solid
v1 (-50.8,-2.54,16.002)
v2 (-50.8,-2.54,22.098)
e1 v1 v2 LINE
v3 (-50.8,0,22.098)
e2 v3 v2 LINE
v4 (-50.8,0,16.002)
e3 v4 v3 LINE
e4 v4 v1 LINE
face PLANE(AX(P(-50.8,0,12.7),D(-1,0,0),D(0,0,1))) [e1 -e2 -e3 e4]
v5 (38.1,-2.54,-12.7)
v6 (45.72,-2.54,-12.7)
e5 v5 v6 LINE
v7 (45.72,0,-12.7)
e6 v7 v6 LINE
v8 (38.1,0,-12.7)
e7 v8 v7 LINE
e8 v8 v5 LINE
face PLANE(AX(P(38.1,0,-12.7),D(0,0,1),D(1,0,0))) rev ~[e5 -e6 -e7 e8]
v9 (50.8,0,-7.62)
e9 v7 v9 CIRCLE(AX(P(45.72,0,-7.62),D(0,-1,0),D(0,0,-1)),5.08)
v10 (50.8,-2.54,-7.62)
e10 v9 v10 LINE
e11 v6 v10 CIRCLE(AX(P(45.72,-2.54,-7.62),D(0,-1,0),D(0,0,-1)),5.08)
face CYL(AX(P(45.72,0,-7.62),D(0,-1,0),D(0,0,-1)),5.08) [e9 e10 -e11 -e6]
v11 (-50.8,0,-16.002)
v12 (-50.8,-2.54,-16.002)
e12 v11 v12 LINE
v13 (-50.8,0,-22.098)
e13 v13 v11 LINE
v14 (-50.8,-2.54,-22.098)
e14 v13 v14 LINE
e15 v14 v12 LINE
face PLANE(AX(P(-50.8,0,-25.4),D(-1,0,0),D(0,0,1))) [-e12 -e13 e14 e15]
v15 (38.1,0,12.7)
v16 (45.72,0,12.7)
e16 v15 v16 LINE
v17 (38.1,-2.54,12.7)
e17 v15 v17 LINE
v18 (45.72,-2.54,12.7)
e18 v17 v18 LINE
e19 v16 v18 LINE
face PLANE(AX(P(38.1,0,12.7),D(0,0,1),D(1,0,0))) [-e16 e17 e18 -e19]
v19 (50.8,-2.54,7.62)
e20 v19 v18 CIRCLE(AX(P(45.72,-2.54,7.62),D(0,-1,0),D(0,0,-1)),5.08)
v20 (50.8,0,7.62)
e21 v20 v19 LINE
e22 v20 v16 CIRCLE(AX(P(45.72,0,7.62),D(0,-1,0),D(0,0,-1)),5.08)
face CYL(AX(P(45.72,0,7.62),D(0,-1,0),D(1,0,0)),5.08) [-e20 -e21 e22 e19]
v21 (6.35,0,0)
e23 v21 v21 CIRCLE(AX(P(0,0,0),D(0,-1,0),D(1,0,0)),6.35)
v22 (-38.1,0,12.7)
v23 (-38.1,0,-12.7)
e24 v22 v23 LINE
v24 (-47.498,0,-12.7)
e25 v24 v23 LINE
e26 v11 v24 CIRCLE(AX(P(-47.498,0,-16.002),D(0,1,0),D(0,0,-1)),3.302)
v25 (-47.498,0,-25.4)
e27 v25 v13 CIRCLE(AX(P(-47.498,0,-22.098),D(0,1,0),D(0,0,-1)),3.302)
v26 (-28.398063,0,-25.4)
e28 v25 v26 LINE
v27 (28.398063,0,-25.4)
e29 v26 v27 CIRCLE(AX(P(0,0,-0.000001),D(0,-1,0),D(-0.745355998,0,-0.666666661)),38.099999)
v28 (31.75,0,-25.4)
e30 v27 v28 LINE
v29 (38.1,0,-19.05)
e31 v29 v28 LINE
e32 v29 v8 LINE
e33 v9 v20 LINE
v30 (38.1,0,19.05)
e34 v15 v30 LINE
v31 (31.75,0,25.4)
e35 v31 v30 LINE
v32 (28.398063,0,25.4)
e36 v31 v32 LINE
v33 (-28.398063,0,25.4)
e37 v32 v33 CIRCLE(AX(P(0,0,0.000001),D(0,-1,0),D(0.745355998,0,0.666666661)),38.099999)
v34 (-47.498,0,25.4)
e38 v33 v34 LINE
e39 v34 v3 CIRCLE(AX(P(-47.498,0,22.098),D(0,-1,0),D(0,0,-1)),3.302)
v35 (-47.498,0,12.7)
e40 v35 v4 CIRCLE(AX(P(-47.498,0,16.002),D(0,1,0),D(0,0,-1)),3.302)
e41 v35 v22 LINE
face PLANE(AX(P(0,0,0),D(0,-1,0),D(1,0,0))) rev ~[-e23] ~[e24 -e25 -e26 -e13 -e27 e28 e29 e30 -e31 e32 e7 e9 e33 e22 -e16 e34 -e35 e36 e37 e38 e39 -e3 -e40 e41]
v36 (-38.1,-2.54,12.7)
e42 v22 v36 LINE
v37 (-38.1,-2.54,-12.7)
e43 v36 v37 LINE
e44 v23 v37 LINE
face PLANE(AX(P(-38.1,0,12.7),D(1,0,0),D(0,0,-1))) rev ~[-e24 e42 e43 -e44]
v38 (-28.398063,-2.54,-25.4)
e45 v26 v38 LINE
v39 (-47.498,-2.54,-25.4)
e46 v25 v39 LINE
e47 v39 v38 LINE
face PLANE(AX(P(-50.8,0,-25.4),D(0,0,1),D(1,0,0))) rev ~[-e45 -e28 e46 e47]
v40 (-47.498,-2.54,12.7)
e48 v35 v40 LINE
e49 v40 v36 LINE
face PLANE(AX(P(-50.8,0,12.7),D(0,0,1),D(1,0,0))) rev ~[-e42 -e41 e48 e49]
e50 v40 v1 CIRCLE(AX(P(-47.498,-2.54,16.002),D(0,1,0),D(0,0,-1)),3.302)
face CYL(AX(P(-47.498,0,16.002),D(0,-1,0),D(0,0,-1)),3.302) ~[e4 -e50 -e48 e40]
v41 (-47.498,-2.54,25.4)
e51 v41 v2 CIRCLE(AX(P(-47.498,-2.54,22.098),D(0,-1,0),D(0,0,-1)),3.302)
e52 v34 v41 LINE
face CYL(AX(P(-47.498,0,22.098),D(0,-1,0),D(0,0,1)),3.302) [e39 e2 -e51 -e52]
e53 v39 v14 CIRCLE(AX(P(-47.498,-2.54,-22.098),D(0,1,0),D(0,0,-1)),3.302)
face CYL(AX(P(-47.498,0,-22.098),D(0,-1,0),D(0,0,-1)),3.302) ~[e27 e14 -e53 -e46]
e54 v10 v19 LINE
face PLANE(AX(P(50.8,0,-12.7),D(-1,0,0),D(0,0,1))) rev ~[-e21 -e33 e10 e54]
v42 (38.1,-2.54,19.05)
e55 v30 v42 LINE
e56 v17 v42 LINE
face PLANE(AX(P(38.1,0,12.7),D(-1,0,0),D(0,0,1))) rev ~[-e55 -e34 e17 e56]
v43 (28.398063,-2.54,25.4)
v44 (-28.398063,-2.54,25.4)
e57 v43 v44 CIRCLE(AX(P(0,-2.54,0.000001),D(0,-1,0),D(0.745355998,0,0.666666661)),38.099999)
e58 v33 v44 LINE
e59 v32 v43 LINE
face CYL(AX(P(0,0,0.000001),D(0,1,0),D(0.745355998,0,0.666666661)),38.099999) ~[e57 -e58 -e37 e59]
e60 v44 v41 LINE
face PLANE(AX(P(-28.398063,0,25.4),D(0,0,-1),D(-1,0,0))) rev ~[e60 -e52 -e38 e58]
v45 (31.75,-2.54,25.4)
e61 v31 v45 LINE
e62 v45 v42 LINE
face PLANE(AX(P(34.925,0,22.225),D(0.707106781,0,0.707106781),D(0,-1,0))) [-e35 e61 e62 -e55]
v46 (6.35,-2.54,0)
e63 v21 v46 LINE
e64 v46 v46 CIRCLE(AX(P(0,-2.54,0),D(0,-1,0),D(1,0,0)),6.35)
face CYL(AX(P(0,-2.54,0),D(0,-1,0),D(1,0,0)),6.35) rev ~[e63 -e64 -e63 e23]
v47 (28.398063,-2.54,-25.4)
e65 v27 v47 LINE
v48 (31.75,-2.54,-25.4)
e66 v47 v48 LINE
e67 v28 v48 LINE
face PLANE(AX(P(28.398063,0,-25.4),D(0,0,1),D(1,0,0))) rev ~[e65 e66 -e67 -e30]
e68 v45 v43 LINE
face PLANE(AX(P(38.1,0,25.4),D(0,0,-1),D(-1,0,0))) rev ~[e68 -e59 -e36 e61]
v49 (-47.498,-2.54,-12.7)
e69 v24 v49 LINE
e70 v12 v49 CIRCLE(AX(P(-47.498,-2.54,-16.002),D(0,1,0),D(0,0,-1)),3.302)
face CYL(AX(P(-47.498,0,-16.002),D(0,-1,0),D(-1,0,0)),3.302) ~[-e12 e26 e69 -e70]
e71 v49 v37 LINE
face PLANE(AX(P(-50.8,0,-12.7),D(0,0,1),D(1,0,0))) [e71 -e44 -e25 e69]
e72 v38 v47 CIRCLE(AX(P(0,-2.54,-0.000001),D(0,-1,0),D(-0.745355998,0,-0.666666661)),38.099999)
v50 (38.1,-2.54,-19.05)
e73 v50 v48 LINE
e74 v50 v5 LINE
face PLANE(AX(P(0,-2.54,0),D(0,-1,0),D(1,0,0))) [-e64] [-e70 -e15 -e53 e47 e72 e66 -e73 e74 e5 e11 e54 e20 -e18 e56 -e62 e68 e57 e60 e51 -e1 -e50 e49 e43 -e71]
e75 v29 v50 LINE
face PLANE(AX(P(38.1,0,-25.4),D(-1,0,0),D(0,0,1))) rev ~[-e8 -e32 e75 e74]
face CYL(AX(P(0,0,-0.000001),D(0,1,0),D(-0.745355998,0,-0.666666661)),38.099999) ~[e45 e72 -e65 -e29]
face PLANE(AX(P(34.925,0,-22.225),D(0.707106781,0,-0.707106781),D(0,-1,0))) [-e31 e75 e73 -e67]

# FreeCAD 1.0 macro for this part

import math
import FreeCAD as App
import Part
import Sketcher
Q = App.Units.Quantity


def edges_at(feature, points):
    """Names of the edges that pass closest to the given points."""
    edges = feature.Shape.Edges
    near = lambda p: min(range(len(edges)), key=lambda i: edges[i].distToShape(Part.Vertex(*p))[0])
    return sorted({f"Edge{near(p) + 1}" for p in points})

doc = App.newDocument("Part")
params = doc.addObject("Spreadsheet::Sheet", "Params")
for row, (alias, value) in enumerate([
    ("sketch1_radius", "1.5 in"),
    ("sketch1_height", "1 in"),
    ("sketch1_width", "0.5 in"),
    ("pad1_length", "0.1 in"),
    ("sketch2_diameter", "0.5 in"),
    ("pocket1_length", "1 in"),
    ("chamfer_size", "0.25 in"),
    ("chamfer2_size", "0.25 in"),
    ("fillet_radius", "0.2 in"),
    ("fillet2_radius", "0.13 in"),
], start=1):
    params.set(f"A{row}", alias)
    params.set(f"B{row}", "=" + value)
    params.setAlias(f"B{row}", alias)

body = doc.addObject("PartDesign::Body", "Body")

sketch1 = doc.addObject("Sketcher::SketchObject", "Sketch")
body.addObject(sketch1)
sketch1.AttachmentSupport = (doc.XZ_Plane, [""])
sketch1.MapMode = "FlatFace"
sketch1.addGeometry([
    Part.LineSegment(App.Vector(38.1, 25.4, 0), App.Vector(28.398063, 25.4, 0)),
    Part.ArcOfCircle(Part.Circle(App.Vector(0, 0.000001, 0), App.Vector(0, 0, 1), 38.099999), math.radians(41.810314), math.radians(138.189686)),
    Part.LineSegment(App.Vector(-28.398063, 25.4, 0), App.Vector(-50.8, 25.4, 0)),
    Part.LineSegment(App.Vector(-50.8, 25.4, 0), App.Vector(-50.8, 12.7, 0)),
    Part.LineSegment(App.Vector(-50.8, 12.7, 0), App.Vector(-38.1, 12.7, 0)),
    Part.LineSegment(App.Vector(-38.1, 12.7, 0), App.Vector(-38.1, -12.7, 0)),
    Part.LineSegment(App.Vector(-38.1, -12.7, 0), App.Vector(-50.8, -12.7, 0)),
    Part.LineSegment(App.Vector(-50.8, -12.7, 0), App.Vector(-50.8, -25.4, 0)),
    Part.LineSegment(App.Vector(-50.8, -25.4, 0), App.Vector(-28.398063, -25.4, 0)),
    Part.ArcOfCircle(Part.Circle(App.Vector(0, -0.000001, 0), App.Vector(0, 0, 1), 38.099999), math.radians(-138.189686), math.radians(-41.810314)),
    Part.LineSegment(App.Vector(28.398063, -25.4, 0), App.Vector(38.1, -25.4, 0)),
    Part.LineSegment(App.Vector(38.1, -25.4, 0), App.Vector(38.1, -12.7, 0)),
    Part.LineSegment(App.Vector(38.1, -12.7, 0), App.Vector(50.8, -12.7, 0)),
    Part.LineSegment(App.Vector(50.8, -12.7, 0), App.Vector(50.8, 12.7, 0)),
    Part.LineSegment(App.Vector(50.8, 12.7, 0), App.Vector(38.1, 12.7, 0)),
    Part.LineSegment(App.Vector(38.1, 12.7, 0), App.Vector(38.1, 25.4, 0)),
], False)
sketch1.addConstraint([
    Sketcher.Constraint("Coincident", 0, 2, 1, 1),
    Sketcher.Constraint("Coincident", 1, 2, 2, 1),
    Sketcher.Constraint("Coincident", 2, 2, 3, 1),
    Sketcher.Constraint("Coincident", 3, 2, 4, 1),
    Sketcher.Constraint("Coincident", 4, 2, 5, 1),
    Sketcher.Constraint("Coincident", 5, 2, 6, 1),
    Sketcher.Constraint("Coincident", 6, 2, 7, 1),
    Sketcher.Constraint("Coincident", 7, 2, 8, 1),
    Sketcher.Constraint("Coincident", 8, 2, 9, 1),
    Sketcher.Constraint("Coincident", 9, 2, 10, 1),
    Sketcher.Constraint("Coincident", 10, 2, 11, 1),
    Sketcher.Constraint("Coincident", 11, 2, 12, 1),
    Sketcher.Constraint("Coincident", 12, 2, 13, 1),
    Sketcher.Constraint("Coincident", 13, 2, 14, 1),
    Sketcher.Constraint("Coincident", 14, 2, 15, 1),
    Sketcher.Constraint("Coincident", 15, 2, 0, 1),
    Sketcher.Constraint("Horizontal", 0),
    Sketcher.Constraint("Horizontal", 2),
    Sketcher.Constraint("Vertical", 3),
    Sketcher.Constraint("Horizontal", 4),
    Sketcher.Constraint("Vertical", 5),
    Sketcher.Constraint("Horizontal", 6),
    Sketcher.Constraint("Vertical", 7),
    Sketcher.Constraint("Horizontal", 8),
    Sketcher.Constraint("Horizontal", 10),
    Sketcher.Constraint("Vertical", 11),
    Sketcher.Constraint("Horizontal", 12),
    Sketcher.Constraint("Vertical", 13),
    Sketcher.Constraint("Horizontal", 14),
    Sketcher.Constraint("Vertical", 15),
    Sketcher.Constraint("Coincident", 1, 3, -1, 1),
    Sketcher.Constraint("Coincident", 9, 3, -1, 1),
    Sketcher.Constraint("Equal", 1, 9),
    Sketcher.Constraint("Symmetric", 4, 2, 11, 2, -1, 1),
    Sketcher.Constraint("Symmetric", 6, 2, 13, 2, -1, 1),
    Sketcher.Constraint("Symmetric", 3, 2, 13, 2, -2),
    Sketcher.Constraint("Symmetric", 10, 2, 15, 2, -1),
    Sketcher.Constraint("Horizontal", 0, 2, 1, 2),
    Sketcher.Constraint("Horizontal", 8, 2, 9, 2),
    Sketcher.Constraint("Equal", 14, 3),
    Sketcher.Constraint("Radius", 1, Q("1.5 in")),
    Sketcher.Constraint("DistanceY", 5, 2, 5, 1, Q("1 in")),
    Sketcher.Constraint("DistanceX", 4, 1, 4, 2, Q("0.5 in")),
    Sketcher.Constraint("DistanceX", 2, 2, -1, 1, Q("2 in")),
])
sketch1.setExpression("Constraints[40]", "Params.sketch1_radius")
sketch1.setExpression("Constraints[41]", "Params.sketch1_height")
sketch1.setExpression("Constraints[42]", "Params.sketch1_width")
pad1 = doc.addObject("PartDesign::Pad", "Pad")
body.addObject(pad1)
pad1.Profile = sketch1
pad1.setExpression("Length", "Params.pad1_length")

sketch2 = doc.addObject("Sketcher::SketchObject", "Sketch001")
body.addObject(sketch2)
sketch2.AttachmentSupport = (doc.XZ_Plane, [""])
sketch2.MapMode = "FlatFace"
sketch2.AttachmentOffset = App.Placement(App.Vector(0, 0, 0.1 * 25.4), App.Rotation())
sketch2.addGeometry(Part.Circle(App.Vector(0, 0, 0), App.Vector(0, 0, 1), 6.35), False)
sketch2.addConstraint([
    Sketcher.Constraint("Coincident", 0, 3, -1, 1),
    Sketcher.Constraint("Diameter", 0, Q("0.5 in")),
])
sketch2.setExpression("Constraints[1]", "Params.sketch2_diameter")
pocket1 = doc.addObject("PartDesign::Pocket", "Pocket")
body.addObject(pocket1)
pocket1.Profile = sketch2
pocket1.setExpression("Length", "Params.pocket1_length")
pocket1.Midplane = True
doc.recompute()

chamfer = doc.addObject("PartDesign::Chamfer", "Chamfer")
body.addObject(chamfer)
chamfer.Base = (pocket1, edges_at(pocket1, [(38.1, -1.27, 25.4)]))
chamfer.setExpression("Size", "Params.chamfer_size")
doc.recompute()

chamfer2 = doc.addObject("PartDesign::Chamfer", "Chamfer001")
body.addObject(chamfer2)
chamfer2.Base = (chamfer, edges_at(chamfer, [(38.1, -1.27, -25.4)]))
chamfer2.setExpression("Size", "Params.chamfer2_size")
doc.recompute()

fillet = doc.addObject("PartDesign::Fillet", "Fillet")
body.addObject(fillet)
fillet.Base = (chamfer2, edges_at(chamfer2, [(50.8, -1.27, 12.7), (50.8, -1.27, -12.7)]))
fillet.setExpression("Radius", "Params.fillet_radius")
doc.recompute()

fillet2 = doc.addObject("PartDesign::Fillet", "Fillet001")
body.addObject(fillet2)
fillet2.Base = (fillet, edges_at(fillet, [
    (-50.8, -1.27, 25.4),
    (-50.8, -1.27, 12.7),
    (-50.8, -1.27, -25.4),
    (-50.8, -1.27, -12.7),
]))
fillet2.setExpression("Radius", "Params.fillet2_radius")

doc.recompute()
